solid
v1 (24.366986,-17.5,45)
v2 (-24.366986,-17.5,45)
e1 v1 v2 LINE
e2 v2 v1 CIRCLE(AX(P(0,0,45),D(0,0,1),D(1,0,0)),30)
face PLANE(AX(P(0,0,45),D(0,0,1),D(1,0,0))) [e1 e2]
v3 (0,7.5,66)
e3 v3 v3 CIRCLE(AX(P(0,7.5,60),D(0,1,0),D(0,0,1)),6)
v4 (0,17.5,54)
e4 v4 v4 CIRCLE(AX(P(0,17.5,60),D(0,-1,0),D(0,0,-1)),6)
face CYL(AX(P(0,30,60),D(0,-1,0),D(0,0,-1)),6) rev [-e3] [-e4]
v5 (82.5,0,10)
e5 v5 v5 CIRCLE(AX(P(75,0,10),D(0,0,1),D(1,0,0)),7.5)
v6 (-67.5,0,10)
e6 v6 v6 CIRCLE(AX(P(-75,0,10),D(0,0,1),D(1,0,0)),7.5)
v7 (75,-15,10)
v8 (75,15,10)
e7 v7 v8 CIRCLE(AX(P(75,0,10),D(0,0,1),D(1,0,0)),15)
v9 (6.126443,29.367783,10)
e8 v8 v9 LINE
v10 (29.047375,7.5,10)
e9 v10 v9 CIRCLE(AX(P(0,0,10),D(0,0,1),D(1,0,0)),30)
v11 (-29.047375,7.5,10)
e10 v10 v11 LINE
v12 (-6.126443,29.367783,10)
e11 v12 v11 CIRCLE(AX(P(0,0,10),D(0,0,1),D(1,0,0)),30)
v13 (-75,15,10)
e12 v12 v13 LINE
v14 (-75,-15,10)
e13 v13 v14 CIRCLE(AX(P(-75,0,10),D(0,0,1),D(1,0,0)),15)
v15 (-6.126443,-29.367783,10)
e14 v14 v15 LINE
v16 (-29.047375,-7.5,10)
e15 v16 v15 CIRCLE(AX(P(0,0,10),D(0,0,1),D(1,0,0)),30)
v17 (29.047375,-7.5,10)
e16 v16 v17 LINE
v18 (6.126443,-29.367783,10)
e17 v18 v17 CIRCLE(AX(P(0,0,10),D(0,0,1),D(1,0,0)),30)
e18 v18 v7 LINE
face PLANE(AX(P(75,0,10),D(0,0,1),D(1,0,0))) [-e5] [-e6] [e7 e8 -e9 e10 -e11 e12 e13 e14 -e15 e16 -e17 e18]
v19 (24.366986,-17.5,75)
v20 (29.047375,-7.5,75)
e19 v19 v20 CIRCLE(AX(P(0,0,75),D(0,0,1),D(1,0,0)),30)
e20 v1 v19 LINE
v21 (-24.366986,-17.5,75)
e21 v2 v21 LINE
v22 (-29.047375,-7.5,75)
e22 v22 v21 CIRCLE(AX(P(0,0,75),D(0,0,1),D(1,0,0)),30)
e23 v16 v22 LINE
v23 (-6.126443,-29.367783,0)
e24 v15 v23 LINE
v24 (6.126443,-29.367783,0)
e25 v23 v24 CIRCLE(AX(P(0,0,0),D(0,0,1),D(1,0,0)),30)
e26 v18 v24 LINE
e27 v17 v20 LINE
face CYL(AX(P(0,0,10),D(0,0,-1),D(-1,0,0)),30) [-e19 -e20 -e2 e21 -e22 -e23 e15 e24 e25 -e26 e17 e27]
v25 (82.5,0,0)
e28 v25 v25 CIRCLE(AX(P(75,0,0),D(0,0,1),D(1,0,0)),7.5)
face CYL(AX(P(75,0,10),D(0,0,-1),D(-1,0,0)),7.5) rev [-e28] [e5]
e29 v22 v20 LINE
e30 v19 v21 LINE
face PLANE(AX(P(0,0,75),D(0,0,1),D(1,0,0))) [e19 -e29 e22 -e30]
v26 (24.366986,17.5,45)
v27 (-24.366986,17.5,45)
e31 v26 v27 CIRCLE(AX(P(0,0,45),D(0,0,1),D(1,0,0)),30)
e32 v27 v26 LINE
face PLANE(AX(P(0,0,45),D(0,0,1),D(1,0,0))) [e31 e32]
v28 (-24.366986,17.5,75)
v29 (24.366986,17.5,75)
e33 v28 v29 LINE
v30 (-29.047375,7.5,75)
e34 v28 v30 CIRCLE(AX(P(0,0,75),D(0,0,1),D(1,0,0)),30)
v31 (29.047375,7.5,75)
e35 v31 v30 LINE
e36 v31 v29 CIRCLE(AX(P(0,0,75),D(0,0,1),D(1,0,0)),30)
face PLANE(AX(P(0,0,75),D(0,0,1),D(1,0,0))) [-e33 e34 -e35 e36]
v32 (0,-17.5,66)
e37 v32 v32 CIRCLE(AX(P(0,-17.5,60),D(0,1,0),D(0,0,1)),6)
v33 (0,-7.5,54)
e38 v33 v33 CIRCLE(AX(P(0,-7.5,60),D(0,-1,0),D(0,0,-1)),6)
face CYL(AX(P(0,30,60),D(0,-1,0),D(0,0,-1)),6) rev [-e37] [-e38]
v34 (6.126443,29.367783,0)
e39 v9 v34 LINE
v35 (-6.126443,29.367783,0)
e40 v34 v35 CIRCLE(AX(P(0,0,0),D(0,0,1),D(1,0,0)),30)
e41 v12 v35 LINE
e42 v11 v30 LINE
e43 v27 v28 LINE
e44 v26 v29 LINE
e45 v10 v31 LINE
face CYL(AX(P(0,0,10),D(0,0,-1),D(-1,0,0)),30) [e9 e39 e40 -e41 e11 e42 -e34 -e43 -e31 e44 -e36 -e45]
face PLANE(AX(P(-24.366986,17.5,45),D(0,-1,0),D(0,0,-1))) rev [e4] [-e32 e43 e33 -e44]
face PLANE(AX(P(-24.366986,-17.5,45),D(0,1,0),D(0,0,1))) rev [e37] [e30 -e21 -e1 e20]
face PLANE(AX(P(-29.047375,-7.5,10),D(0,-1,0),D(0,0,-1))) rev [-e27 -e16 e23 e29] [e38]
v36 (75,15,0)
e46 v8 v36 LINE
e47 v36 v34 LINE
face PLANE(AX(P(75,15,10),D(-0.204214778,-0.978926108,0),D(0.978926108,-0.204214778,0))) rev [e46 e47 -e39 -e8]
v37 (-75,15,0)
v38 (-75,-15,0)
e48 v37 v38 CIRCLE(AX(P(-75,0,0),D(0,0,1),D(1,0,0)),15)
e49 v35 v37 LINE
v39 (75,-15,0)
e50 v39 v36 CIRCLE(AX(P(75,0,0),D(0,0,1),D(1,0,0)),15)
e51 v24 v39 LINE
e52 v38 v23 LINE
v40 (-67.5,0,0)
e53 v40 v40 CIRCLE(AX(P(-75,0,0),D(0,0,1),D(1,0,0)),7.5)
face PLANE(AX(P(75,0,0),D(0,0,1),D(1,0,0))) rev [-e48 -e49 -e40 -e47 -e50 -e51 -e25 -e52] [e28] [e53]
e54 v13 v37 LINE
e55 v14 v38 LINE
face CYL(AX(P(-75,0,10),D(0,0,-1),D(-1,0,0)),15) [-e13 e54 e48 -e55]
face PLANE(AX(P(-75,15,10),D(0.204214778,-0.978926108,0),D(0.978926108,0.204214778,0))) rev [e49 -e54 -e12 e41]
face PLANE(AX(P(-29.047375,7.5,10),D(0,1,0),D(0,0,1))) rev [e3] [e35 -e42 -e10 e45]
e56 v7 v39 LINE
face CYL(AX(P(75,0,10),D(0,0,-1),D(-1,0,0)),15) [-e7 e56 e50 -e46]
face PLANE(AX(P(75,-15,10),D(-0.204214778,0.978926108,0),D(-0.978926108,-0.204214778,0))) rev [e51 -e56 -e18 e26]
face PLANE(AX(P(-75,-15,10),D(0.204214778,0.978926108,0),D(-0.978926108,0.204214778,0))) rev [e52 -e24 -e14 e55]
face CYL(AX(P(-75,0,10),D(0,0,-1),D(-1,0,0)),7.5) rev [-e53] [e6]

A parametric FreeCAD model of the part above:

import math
import FreeCAD as App
import Part
import Sketcher

doc = App.newDocument("Part")
body = doc.addObject("PartDesign::Body", "Body")

# Sketch on XY plane
sketch1 = body.newObject("Sketcher::SketchObject", "Sketch")
sketch1.AttachmentSupport = (doc.getObject("XY_Plane"), [""])
sketch1.MapMode = "FlatFace"
sketch1.addGeometry([
    Part.LineSegment(App.Vector(75, 15, 0), App.Vector(6, 29, 0)),  # 0
    Part.ArcOfCircle(Part.Circle(App.Vector(0, 0, 0), App.Vector(0, 0, 1), 30), math.radians(78), math.radians(102)),  # 1
    Part.LineSegment(App.Vector(-6, 29, 0), App.Vector(-75, 15, 0)),  # 2
    Part.ArcOfCircle(Part.Circle(App.Vector(-75, 0, 0), App.Vector(0, 0, 1), 15), math.radians(90), math.radians(270)),  # 3
    Part.LineSegment(App.Vector(-75, -15, 0), App.Vector(-6, -29, 0)),  # 4
    Part.ArcOfCircle(Part.Circle(App.Vector(0, 0, 0), App.Vector(0, 0, 1), 30), math.radians(-102), math.radians(-78)),  # 5
    Part.LineSegment(App.Vector(6, -29, 0), App.Vector(75, -15, 0)),  # 6
    Part.ArcOfCircle(Part.Circle(App.Vector(75, 0, 0), App.Vector(0, 0, 1), 15), math.radians(-90), math.radians(90)),  # 7
    Part.Circle(App.Vector(-75, 0, 0), App.Vector(0, 0, 1), 8),  # 8
    Part.Circle(App.Vector(75, 0, 0), App.Vector(0, 0, 1), 8),  # 9
], False)
sketch1.addConstraint([
    Sketcher.Constraint("Tangent", 0, 2, 1, 1),
    Sketcher.Constraint("Tangent", 1, 2, 2, 1),
    Sketcher.Constraint("Coincident", 2, 2, 3, 1),
    Sketcher.Constraint("Coincident", 3, 2, 4, 1),
    Sketcher.Constraint("Tangent", 4, 2, 5, 1),
    Sketcher.Constraint("Tangent", 5, 2, 6, 1),
    Sketcher.Constraint("Coincident", 6, 2, 7, 1),
    Sketcher.Constraint("Coincident", 7, 2, 0, 1),
    Sketcher.Constraint("Coincident", 1, 3, -1, 1),
    Sketcher.Constraint("Coincident", 5, 3, -1, 1),
    Sketcher.Constraint("Coincident", 8, 3, 3, 3),
    Sketcher.Constraint("Coincident", 9, 3, 7, 3),
    Sketcher.Constraint("Equal", 1, 5),
    Sketcher.Constraint("Equal", 3, 7),
    Sketcher.Constraint("Equal", 8, 9),
    Sketcher.Constraint("Symmetric", 3, 3, 7, 3, -1, 1),
    Sketcher.Constraint("Symmetric", 3, 2, 6, 2, -2),
    Sketcher.Constraint("Parallel", 0, 4),
    Sketcher.Constraint("Parallel", 2, 6),
    Sketcher.Constraint("Vertical", 8, 3, 2, 2),
    Sketcher.Constraint("Diameter", 8, 15.0),
    Sketcher.Constraint("Radius", 1, 30.0),
    Sketcher.Constraint("Radius", 3, 15.0),
    Sketcher.Constraint("DistanceX", 3, 3, -1, 1, 75.0),
])
pad1 = body.newObject("PartDesign::Pad", "Pad")
pad1.Profile = sketch1
pad1.Length = 10

# Sketch on XY plane
sketch2 = body.newObject("Sketcher::SketchObject", "Sketch001")
sketch2.AttachmentSupport = (doc.getObject("XY_Plane"), [""])
sketch2.MapMode = "FlatFace"
sketch2.AttachmentOffset = App.Placement(App.Vector(0, 0, 10), App.Rotation())
sketch2.addGeometry(Part.Circle(App.Vector(0, 0, 0), App.Vector(0, 0, 1), 30), False)
sketch2.addConstraint([
    Sketcher.Constraint("Coincident", 0, 3, -1, 1),
    Sketcher.Constraint("Diameter", 0, 60.0),
])
pad2 = body.newObject("PartDesign::Pad", "Pad001")
pad2.Profile = sketch2
pad2.Length = 65

# Sketch on XY plane
sketch3 = body.newObject("Sketcher::SketchObject", "Sketch002")
sketch3.AttachmentSupport = (doc.getObject("XY_Plane"), [""])
sketch3.MapMode = "FlatFace"
sketch3.AttachmentOffset = App.Placement(App.Vector(0, 0, 75), App.Rotation())
sketch3.addGeometry([
    Part.LineSegment(App.Vector(-29, -8, 0), App.Vector(29, -8, 0)),
    Part.ArcOfCircle(Part.Circle(App.Vector(0, 0, 0), App.Vector(0, 0, 1), 30), math.radians(-14), math.radians(14)),
    Part.LineSegment(App.Vector(29, 8, 0), App.Vector(-29, 8, 0)),
    Part.ArcOfCircle(Part.Circle(App.Vector(0, 0, 0), App.Vector(0, 0, 1), 30), math.radians(166), math.radians(194)),
], False)
sketch3.addConstraint([
    Sketcher.Constraint("Coincident", 0, 2, 1, 1),
    Sketcher.Constraint("Coincident", 1, 2, 2, 1),
    Sketcher.Constraint("Coincident", 2, 2, 3, 1),
    Sketcher.Constraint("Coincident", 3, 2, 0, 1),
    Sketcher.Constraint("Horizontal", 0),
    Sketcher.Constraint("Horizontal", 2),
    Sketcher.Constraint("Coincident", 1, 3, -1, 1),
    Sketcher.Constraint("Coincident", 3, 3, -1, 1),
    Sketcher.Constraint("Equal", 1, 3),
    Sketcher.Constraint("Vertical", 0, 2, 1, 2),
    Sketcher.Constraint("Radius", 1, 30.0),
    Sketcher.Constraint("DistanceY", 0, 2, 1, 2, 15.0),
])
pocket1 = body.newObject("PartDesign::Pocket", "Pocket")
pocket1.Profile = sketch3
pocket1.Length = 65

# Sketch on XY plane
sketch4 = body.newObject("Sketcher::SketchObject", "Sketch003")
sketch4.AttachmentSupport = (doc.getObject("XY_Plane"), [""])
sketch4.MapMode = "FlatFace"
sketch4.AttachmentOffset = App.Placement(App.Vector(0, 0, 75), App.Rotation())
sketch4.addGeometry([
    Part.LineSegment(App.Vector(24, -18, 0), App.Vector(-24, -18, 0)),
    Part.ArcOfCircle(Part.Circle(App.Vector(0, 0, 0), App.Vector(0, 0, 1), 30), math.radians(-144), math.radians(-36)),
    Part.LineSegment(App.Vector(-24, 18, 0), App.Vector(24, 18, 0)),
    Part.ArcOfCircle(Part.Circle(App.Vector(0, 0, 0), App.Vector(0, 0, 1), 30), math.radians(36), math.radians(144)),
], False)
sketch4.addConstraint([
    Sketcher.Constraint("Coincident", 0, 1, 1, 2),
    Sketcher.Constraint("Coincident", 1, 1, 0, 2),
    Sketcher.Constraint("Coincident", 2, 1, 3, 2),
    Sketcher.Constraint("Coincident", 3, 1, 2, 2),
    Sketcher.Constraint("Horizontal", 0),
    Sketcher.Constraint("Horizontal", 2),
    Sketcher.Constraint("Coincident", 1, 3, -1, 1),
    Sketcher.Constraint("Coincident", 3, 3, -1, 1),
    Sketcher.Constraint("Equal", 1, 3),
    Sketcher.Constraint("Vertical", 1, 1, 2, 1),
    Sketcher.Constraint("Radius", 1, 30.0),
    Sketcher.Constraint("DistanceY", 1, 1, 2, 1, 35.0),
])
pocket2 = body.newObject("PartDesign::Pocket", "Pocket001")
pocket2.Profile = sketch4
pocket2.Length = 30

# Sketch on XZ plane
sketch5 = body.newObject("Sketcher::SketchObject", "Sketch004")
sketch5.AttachmentSupport = (doc.getObject("XZ_Plane"), [""])
sketch5.MapMode = "FlatFace"
sketch5.AttachmentOffset = App.Placement(App.Vector(0, 0, 17.5), App.Rotation())
sketch5.addGeometry(Part.Circle(App.Vector(0, 60, 0), App.Vector(0, 0, 1), 6), False)
sketch5.addConstraint([
    Sketcher.Constraint("PointOnObject", 0, 3, -2),
    Sketcher.Constraint("Diameter", 0, 12.0),
    Sketcher.Constraint("DistanceY", -1, 1, 0, 3, 60.0),
])
pocket3 = body.newObject("PartDesign::Pocket", "Pocket002")
pocket3.Profile = sketch5
pocket3.Type = "ThroughAll"
pocket3.Midplane = True

doc.recompute()
